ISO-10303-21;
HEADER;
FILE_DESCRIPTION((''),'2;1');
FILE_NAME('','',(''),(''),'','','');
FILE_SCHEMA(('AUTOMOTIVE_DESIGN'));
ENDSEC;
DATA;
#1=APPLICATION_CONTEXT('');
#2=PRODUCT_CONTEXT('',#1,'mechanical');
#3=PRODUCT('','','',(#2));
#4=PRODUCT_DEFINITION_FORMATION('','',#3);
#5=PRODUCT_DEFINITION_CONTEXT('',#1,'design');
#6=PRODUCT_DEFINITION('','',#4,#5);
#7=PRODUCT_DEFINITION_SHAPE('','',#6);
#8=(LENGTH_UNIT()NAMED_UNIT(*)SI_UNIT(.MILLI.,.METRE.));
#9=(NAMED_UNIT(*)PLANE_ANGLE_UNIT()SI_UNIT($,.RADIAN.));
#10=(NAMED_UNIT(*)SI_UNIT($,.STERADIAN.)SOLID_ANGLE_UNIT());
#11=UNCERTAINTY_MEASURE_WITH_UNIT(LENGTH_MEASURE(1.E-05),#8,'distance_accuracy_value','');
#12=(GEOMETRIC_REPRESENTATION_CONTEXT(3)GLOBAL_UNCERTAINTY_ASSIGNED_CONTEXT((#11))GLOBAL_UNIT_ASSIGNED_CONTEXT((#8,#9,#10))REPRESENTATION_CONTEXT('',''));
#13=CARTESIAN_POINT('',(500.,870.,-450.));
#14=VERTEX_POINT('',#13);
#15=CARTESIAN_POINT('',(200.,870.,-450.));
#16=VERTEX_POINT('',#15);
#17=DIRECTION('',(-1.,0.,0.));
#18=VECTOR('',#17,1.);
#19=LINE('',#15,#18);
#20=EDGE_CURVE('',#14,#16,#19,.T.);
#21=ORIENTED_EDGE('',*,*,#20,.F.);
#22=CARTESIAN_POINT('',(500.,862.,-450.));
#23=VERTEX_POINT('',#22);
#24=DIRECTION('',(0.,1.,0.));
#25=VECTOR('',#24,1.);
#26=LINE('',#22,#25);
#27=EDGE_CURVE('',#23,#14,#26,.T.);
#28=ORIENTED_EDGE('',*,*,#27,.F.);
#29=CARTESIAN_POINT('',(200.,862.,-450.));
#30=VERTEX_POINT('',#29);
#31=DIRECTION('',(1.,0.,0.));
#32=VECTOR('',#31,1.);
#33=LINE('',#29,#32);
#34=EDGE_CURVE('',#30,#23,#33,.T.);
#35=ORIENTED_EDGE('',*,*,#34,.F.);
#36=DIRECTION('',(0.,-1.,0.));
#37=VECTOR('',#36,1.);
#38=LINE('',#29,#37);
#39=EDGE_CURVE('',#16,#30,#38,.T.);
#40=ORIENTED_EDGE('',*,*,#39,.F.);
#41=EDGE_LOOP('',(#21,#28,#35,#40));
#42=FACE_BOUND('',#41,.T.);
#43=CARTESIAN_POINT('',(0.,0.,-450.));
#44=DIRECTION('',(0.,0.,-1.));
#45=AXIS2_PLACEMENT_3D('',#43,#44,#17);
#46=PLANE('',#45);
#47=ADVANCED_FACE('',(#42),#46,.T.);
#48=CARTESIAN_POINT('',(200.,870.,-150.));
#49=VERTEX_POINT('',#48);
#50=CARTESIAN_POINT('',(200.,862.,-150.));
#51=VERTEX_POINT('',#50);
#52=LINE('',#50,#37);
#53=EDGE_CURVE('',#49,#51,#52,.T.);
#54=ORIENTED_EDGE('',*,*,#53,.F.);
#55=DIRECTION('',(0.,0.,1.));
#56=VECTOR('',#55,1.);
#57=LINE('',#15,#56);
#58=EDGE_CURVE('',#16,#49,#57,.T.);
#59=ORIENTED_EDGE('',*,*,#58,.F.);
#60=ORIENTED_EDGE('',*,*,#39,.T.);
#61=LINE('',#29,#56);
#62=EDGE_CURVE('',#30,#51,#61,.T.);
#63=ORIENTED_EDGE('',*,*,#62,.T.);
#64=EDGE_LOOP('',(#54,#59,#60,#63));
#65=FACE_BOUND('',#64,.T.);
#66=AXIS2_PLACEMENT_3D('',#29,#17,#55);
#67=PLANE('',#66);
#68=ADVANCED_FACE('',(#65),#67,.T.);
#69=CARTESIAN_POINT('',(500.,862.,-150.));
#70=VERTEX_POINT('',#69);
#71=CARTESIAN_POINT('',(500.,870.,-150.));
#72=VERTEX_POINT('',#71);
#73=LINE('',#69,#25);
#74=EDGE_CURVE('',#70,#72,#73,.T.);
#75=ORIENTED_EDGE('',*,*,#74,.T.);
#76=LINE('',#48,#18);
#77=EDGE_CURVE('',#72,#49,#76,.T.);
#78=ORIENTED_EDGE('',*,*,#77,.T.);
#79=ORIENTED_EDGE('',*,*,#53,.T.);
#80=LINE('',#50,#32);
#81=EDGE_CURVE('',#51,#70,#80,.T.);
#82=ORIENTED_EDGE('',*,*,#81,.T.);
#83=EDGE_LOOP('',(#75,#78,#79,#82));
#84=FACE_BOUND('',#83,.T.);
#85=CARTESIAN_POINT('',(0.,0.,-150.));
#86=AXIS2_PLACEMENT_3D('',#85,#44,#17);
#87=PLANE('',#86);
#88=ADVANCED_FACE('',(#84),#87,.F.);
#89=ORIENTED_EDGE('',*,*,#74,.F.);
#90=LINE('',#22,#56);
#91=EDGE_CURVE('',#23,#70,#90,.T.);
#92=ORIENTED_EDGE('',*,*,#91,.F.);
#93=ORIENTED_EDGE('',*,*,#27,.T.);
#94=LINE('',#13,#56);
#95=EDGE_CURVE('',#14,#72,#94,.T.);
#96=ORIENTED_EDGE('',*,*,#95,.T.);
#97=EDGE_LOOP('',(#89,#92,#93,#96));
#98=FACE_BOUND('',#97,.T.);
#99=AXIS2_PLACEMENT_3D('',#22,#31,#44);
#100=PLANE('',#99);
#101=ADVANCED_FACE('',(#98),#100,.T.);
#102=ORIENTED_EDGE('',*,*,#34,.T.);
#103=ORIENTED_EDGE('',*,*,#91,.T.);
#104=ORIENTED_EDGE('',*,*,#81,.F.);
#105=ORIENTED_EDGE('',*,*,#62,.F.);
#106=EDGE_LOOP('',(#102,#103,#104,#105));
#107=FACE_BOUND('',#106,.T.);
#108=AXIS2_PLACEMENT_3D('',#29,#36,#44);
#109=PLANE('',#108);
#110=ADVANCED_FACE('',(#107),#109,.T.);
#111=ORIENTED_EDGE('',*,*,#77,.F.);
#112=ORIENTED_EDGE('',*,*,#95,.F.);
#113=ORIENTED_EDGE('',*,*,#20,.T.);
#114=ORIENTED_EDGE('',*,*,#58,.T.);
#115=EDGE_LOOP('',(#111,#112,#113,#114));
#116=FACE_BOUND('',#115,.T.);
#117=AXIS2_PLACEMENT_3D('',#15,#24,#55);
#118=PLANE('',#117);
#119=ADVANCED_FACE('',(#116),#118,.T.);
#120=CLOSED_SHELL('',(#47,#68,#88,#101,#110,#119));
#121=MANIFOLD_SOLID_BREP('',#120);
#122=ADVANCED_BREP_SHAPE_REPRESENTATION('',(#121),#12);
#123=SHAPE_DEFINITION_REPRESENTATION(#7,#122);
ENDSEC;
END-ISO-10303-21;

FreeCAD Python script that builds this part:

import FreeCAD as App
import Part
import Sketcher
from FreeCAD import Vector

doc = App.newDocument("Part")
body = doc.addObject("PartDesign::Body", "Body")

sketch1 = body.newObject("Sketcher::SketchObject", "Sketch")
sketch1.AttachmentSupport = (doc.getObject("XY_Plane"), [""])
sketch1.MapMode = "FlatFace"
sketch1.AttachmentOffset = App.Placement(Vector(0, 0, -150), App.Rotation())
sketch1.addGeometry([
    Part.LineSegment(Vector(200, 870, 0), Vector(200, 862, 0)),
    Part.LineSegment(Vector(200, 862, 0), Vector(500, 862, 0)),
    Part.LineSegment(Vector(500, 862, 0), Vector(500, 870, 0)),
    Part.LineSegment(Vector(500, 870, 0), Vector(200, 870, 0)),
], False)
sketch1.addConstraint([
    Sketcher.Constraint("Coincident", 0, 2, 1, 1),
    Sketcher.Constraint("Coincident", 1, 2, 2, 1),
    Sketcher.Constraint("Coincident", 2, 2, 3, 1),
    Sketcher.Constraint("Coincident", 3, 2, 0, 1),
    Sketcher.Constraint("Vertical", 0),
    Sketcher.Constraint("Horizontal", 1),
    Sketcher.Constraint("Vertical", 2),
    Sketcher.Constraint("Horizontal", 3),
    Sketcher.Constraint("DistanceX", 1, 1, 1, 2, 300.0),
    Sketcher.Constraint("DistanceY", 0, 2, 0, 1, 8.0),
    Sketcher.Constraint("DistanceX", -1, 1, 0, 2, 200.0),
    Sketcher.Constraint("DistanceY", -1, 1, 0, 2, 862.0),
])
pad1 = body.newObject("PartDesign::Pad", "Pad")
pad1.Profile = sketch1
pad1.Length = 300
pad1.Reversed = True

doc.recompute()
